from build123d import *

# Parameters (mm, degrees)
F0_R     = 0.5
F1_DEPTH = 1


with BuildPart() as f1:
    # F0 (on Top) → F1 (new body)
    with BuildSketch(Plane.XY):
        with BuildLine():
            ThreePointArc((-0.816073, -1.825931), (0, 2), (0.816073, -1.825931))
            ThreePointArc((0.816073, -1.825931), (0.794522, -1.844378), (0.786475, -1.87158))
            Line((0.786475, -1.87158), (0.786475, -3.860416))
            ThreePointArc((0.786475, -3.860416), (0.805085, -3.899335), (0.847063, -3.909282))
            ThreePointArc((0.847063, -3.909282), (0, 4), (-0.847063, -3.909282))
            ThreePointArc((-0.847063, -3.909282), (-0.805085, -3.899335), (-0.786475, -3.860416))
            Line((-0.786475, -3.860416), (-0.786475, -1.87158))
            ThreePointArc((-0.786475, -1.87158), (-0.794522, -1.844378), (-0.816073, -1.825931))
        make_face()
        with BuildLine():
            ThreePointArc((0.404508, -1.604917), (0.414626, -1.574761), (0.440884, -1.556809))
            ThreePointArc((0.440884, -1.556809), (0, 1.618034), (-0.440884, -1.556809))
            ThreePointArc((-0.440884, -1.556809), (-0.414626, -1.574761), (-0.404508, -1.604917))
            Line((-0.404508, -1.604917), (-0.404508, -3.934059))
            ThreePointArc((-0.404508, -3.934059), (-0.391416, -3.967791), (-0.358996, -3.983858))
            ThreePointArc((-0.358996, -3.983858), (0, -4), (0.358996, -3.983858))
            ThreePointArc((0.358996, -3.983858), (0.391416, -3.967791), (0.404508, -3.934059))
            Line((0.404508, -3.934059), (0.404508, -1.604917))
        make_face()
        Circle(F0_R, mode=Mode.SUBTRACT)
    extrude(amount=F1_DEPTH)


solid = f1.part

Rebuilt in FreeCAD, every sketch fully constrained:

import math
import FreeCAD as App
import Part
import Sketcher

V = App.Vector
Q = App.Units.Quantity

doc = App.newDocument("Part")
body = doc.addObject("PartDesign::Body", "Body")
body.AllowCompound = True

sketch1 = doc.addObject("Sketcher::SketchObject", "Sketch")
body.addObject(sketch1)
sketch1.AttachmentSupport = (doc.XY_Plane, [""])
sketch1.MapMode = "FlatFace"
sketch1.addGeometry(Part.ArcOfCircle(Part.Circle(V(0, 0, 0), V(0, 0, 1), 2), math.radians(-65.918448), math.radians(245.918448)), False)
sketch1.addGeometry(Part.ArcOfCircle(Part.Circle(V(0.836477, -1.871581, 0), V(0, 0, 1), 0.050002), math.radians(114.083334), math.radians(179.99935)), False)
sketch1.addGeometry(Part.LineSegment(V(0.786475, -1.87158, 0), V(0.786475, -3.860416, 0)), False)
sketch1.addGeometry(Part.ArcOfCircle(Part.Circle(V(0.836475, -3.860416, 0), V(0, 0, 1), 0.05), math.radians(179.999444), math.radians(282.226166)), False)
sketch1.addGeometry(Part.ArcOfCircle(Part.Circle(V(0, 0, 0), V(0, 0, 1), 4), math.radians(-77.77415), math.radians(257.77415)), False)
sketch1.addGeometry(Part.ArcOfCircle(Part.Circle(V(-0.836475, -3.860416, 0), V(0, 0, 1), 0.05), math.radians(-102.226166), math.radians(0.000556)), False)
sketch1.addGeometry(Part.LineSegment(V(-0.786475, -3.860416, 0), V(-0.786475, -1.87158, 0)), False)
sketch1.addGeometry(Part.ArcOfCircle(Part.Circle(V(-0.836477, -1.871581, 0), V(0, 0, 1), 0.050002), math.radians(0.00065), math.radians(65.916666)), False)
sketch1.addGeometry(Part.ArcOfCircle(Part.Circle(V(0.454509, -1.604918, 0), V(0, 0, 1), 0.050001), math.radians(105.813171), math.radians(179.998641)), False)
sketch1.addGeometry(Part.ArcOfCircle(Part.Circle(V(0, 0, 0), V(0, 0, 1), 1.618034), math.radians(-74.188026), math.radians(254.188026)), False)
sketch1.addGeometry(Part.ArcOfCircle(Part.Circle(V(-0.454509, -1.604918, 0), V(0, 0, 1), 0.050001), math.radians(0.001359), math.radians(74.186829)), False)
sketch1.addGeometry(Part.LineSegment(V(-0.404508, -1.604917, 0), V(-0.404508, -3.934059, 0)), False)
sketch1.addGeometry(Part.ArcOfCircle(Part.Circle(V(-0.354508, -3.93406, 0), V(0, 0, 1), 0.05), math.radians(179.999276), math.radians(264.849975)), False)
sketch1.addGeometry(Part.ArcOfCircle(Part.Circle(V(0, 0.000083, 0), V(0, 0, 1), 4.000083), math.radians(-95.14906), math.radians(-84.85094)), False)
sketch1.addGeometry(Part.ArcOfCircle(Part.Circle(V(0.354508, -3.93406, 0), V(0, 0, 1), 0.05), math.radians(-84.849975), math.radians(0.000724)), False)
sketch1.addGeometry(Part.LineSegment(V(0.404508, -3.934059, 0), V(0.404508, -1.604917, 0)), False)
sketch1.addGeometry(Part.Circle(V(0, 0, 0), V(0, 0, 1), 0.5), False)
sketch1.addConstraint(Sketcher.Constraint("Coincident", 0, 1, 1, 1))
sketch1.addConstraint(Sketcher.Constraint("Coincident", 1, 2, 2, 1))
sketch1.addConstraint(Sketcher.Constraint("Coincident", 2, 2, 3, 1))
sketch1.addConstraint(Sketcher.Constraint("Coincident", 3, 2, 4, 1))
sketch1.addConstraint(Sketcher.Constraint("Coincident", 4, 2, 5, 1))
sketch1.addConstraint(Sketcher.Constraint("Coincident", 5, 2, 6, 1))
sketch1.addConstraint(Sketcher.Constraint("Coincident", 6, 2, 7, 1))
sketch1.addConstraint(Sketcher.Constraint("Coincident", 7, 2, 0, 2))
sketch1.addConstraint(Sketcher.Constraint("Coincident", 8, 1, 9, 1))
sketch1.addConstraint(Sketcher.Constraint("Coincident", 9, 2, 10, 2))
sketch1.addConstraint(Sketcher.Constraint("Coincident", 10, 1, 11, 1))
sketch1.addConstraint(Sketcher.Constraint("Coincident", 11, 2, 12, 1))
sketch1.addConstraint(Sketcher.Constraint("Coincident", 12, 2, 13, 1))
sketch1.addConstraint(Sketcher.Constraint("Coincident", 13, 2, 14, 1))
sketch1.addConstraint(Sketcher.Constraint("Coincident", 14, 2, 15, 1))
sketch1.addConstraint(Sketcher.Constraint("Coincident", 15, 2, 8, 2))
sketch1.addConstraint(Sketcher.Constraint("Vertical", 2))
sketch1.addConstraint(Sketcher.Constraint("Vertical", 6))
sketch1.addConstraint(Sketcher.Constraint("Vertical", 11))
sketch1.addConstraint(Sketcher.Constraint("Vertical", 15))
sketch1.addConstraint(Sketcher.Constraint("Coincident", 0, 3, -1, 1))
sketch1.addConstraint(Sketcher.Constraint("Coincident", 4, 3, -1, 1))
sketch1.addConstraint(Sketcher.Constraint("Coincident", 9, 3, -1, 1))
sketch1.addConstraint(Sketcher.Constraint("Coincident", 16, 3, -1, 1))
sketch1.addConstraint(Sketcher.Constraint("PointOnObject", 13, 3, -2))
sketch1.addConstraint(Sketcher.Constraint("Diameter", 16, Q("1 mm")))
sketch1.addConstraint(Sketcher.Constraint("Radius", 0, Q("2 mm")))
sketch1.addConstraint(Sketcher.Constraint("Radius", 4, Q("4 mm")))
sketch1.addConstraint(Sketcher.Constraint("Radius", 3, Q("0.05 mm")))
sketch1.addConstraint(Sketcher.Constraint("Radius", 5, Q("0.05 mm")))
sketch1.addConstraint(Sketcher.Constraint("Radius", 8, Q("0.050001 mm")))
sketch1.addConstraint(Sketcher.Constraint("Radius", 10, Q("0.050001 mm")))
sketch1.addConstraint(Sketcher.Constraint("Radius", 12, Q("0.05 mm")))
sketch1.addConstraint(Sketcher.Constraint("Radius", 14, Q("0.05 mm")))
sketch1.addConstraint(Sketcher.Constraint("Radius", 1, Q("0.050002 mm")))
sketch1.addConstraint(Sketcher.Constraint("Radius", 7, Q("0.050002 mm")))
sketch1.addConstraint(Sketcher.Constraint("Radius", 9, Q("1.618034 mm")))
sketch1.addConstraint(Sketcher.Constraint("Radius", 13, Q("4.000083 mm")))
sketch1.addConstraint(Sketcher.Constraint("DistanceY", 8, 3, 13, 3, Q("1.605002 mm")))
sketch1.addConstraint(Sketcher.Constraint("DistanceY", 10, 3, 13, 3, Q("1.605002 mm")))
sketch1.addConstraint(Sketcher.Constraint("DistanceY", 11, 2, 11, 1, Q("2.329142 mm")))
sketch1.addConstraint(Sketcher.Constraint("DistanceY", 15, 1, 15, 2, Q("2.329142 mm")))
sketch1.addConstraint(Sketcher.Constraint("DistanceY", 3, 3, 8, 3, Q("2.255498 mm")))
sketch1.addConstraint(Sketcher.Constraint("DistanceX", 1, 2, 0, 1, Q("0.029598 mm")))
sketch1.addConstraint(Sketcher.Constraint("DistanceY", 12, 2, 12, 3, Q("0.049798 mm")))
sketch1.addConstraint(Sketcher.Constraint("DistanceY", 12, 2, 11, 2, Q("0.049799 mm")))
sketch1.addConstraint(Sketcher.Constraint("DistanceY", 13, 2, 14, 3, Q("0.049798 mm")))
sketch1.addConstraint(Sketcher.Constraint("DistanceY", 13, 2, 14, 2, Q("0.049799 mm")))
sketch1.addConstraint(Sketcher.Constraint("DistanceY", 2, 2, 2, 1, Q("1.988836 mm")))
sketch1.addConstraint(Sketcher.Constraint("DistanceY", 6, 1, 6, 2, Q("1.988836 mm")))
sketch1.addConstraint(Sketcher.Constraint("DistanceY", 1, 3, -1, 1, Q("1.871581 mm")))
sketch1.addConstraint(Sketcher.Constraint("DistanceY", 7, 3, -1, 1, Q("1.871581 mm")))
sketch1.addConstraint(Sketcher.Constraint("DistanceY", 1, 2, -1, 1, Q("1.87158 mm")))
sketch1.addConstraint(Sketcher.Constraint("DistanceY", 3, 2, -1, 1, Q("3.909282 mm")))
sketch1.addConstraint(Sketcher.Constraint("DistanceY", 6, 2, -1, 1, Q("1.87158 mm")))
sketch1.addConstraint(Sketcher.Constraint("DistanceY", 7, 2, -1, 1, Q("1.825931 mm")))
sketch1.addConstraint(Sketcher.Constraint("DistanceY", 8, 1, -1, 1, Q("1.556809 mm")))
sketch1.addConstraint(Sketcher.Constraint("DistanceY", 9, 2, -1, 1, Q("1.556809 mm")))
sketch1.addConstraint(Sketcher.Constraint("DistanceX", 4, 2, 5, 3, Q("0.010588 mm")))
pad1 = doc.addObject("PartDesign::Pad", "Pad")
body.addObject(pad1)
pad1.Profile = sketch1
pad1.Length = 1

doc.recompute()
